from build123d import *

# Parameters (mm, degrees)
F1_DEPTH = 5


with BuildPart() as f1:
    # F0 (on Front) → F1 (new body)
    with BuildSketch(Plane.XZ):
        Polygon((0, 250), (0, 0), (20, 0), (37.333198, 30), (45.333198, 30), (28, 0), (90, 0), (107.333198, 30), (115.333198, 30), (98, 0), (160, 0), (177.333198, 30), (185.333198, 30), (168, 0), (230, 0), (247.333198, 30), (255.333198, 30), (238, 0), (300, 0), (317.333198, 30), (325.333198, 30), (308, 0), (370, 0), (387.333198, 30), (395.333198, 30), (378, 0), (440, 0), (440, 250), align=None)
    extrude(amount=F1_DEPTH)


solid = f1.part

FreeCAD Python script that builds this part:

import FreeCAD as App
import Part
import Sketcher

V = App.Vector
Q = App.Units.Quantity


def add_polygon(sketch, points):
    """Adds a closed chain of lines whose ends are joined by coincident constraints."""
    first, n = sketch.GeometryCount, len(points)
    for a, b in zip(points, points[1:] + points[:1]):
        sketch.addGeometry(Part.LineSegment(App.Vector(*a, 0), App.Vector(*b, 0)), False)
    for i in range(n):
        sketch.addConstraint(Sketcher.Constraint("Coincident", first + i, 2, first + (i + 1) % n, 1))

doc = App.newDocument("Part")
body = doc.addObject("PartDesign::Body", "Body")

sketch1 = body.newObject("Sketcher::SketchObject", "Sketch")
sketch1.AttachmentSupport = (doc.getObject("XZ_Plane"), [""])
sketch1.MapMode = "FlatFace"
add_polygon(sketch1, [(0, 250), (0, 0), (20, 0), (37, 30), (45, 30), (28, 0), (90, 0), (107, 30), (115, 30), (98, 0), (160, 0), (177, 30), (185, 30), (168, 0), (230, 0), (247, 30), (255, 30), (238, 0), (300, 0), (317, 30), (325, 30), (308, 0), (370, 0), (387, 30), (395, 30), (378, 0), (440, 0), (440, 250)])
sketch1.addConstraint([
    Sketcher.Constraint("Vertical", 0),
    Sketcher.Constraint("Horizontal", 1),
    Sketcher.Constraint("Horizontal", 3),
    Sketcher.Constraint("Horizontal", 5),
    Sketcher.Constraint("Horizontal", 7),
    Sketcher.Constraint("Horizontal", 9),
    Sketcher.Constraint("Horizontal", 11),
    Sketcher.Constraint("Horizontal", 13),
    Sketcher.Constraint("Horizontal", 15),
    Sketcher.Constraint("Horizontal", 17),
    Sketcher.Constraint("Horizontal", 19),
    Sketcher.Constraint("Horizontal", 21),
    Sketcher.Constraint("Horizontal", 23),
    Sketcher.Constraint("Horizontal", 25),
    Sketcher.Constraint("Vertical", 26),
    Sketcher.Constraint("Horizontal", 27),
    Sketcher.Constraint("Coincident", 0, 2, -1, 1),
    Sketcher.Constraint("PointOnObject", 4, 2, -1),
    Sketcher.Constraint("PointOnObject", 8, 2, -1),
    Sketcher.Constraint("PointOnObject", 12, 2, -1),
    Sketcher.Constraint("PointOnObject", 16, 2, -1),
    Sketcher.Constraint("PointOnObject", 20, 2, -1),
    Sketcher.Constraint("PointOnObject", 24, 2, -1),
    Sketcher.Constraint("Parallel", 2, 4),
    Sketcher.Constraint("Parallel", 4, 6),
    Sketcher.Constraint("Parallel", 6, 8),
    Sketcher.Constraint("Parallel", 8, 10),
    Sketcher.Constraint("Parallel", 10, 12),
    Sketcher.Constraint("Parallel", 12, 14),
    Sketcher.Constraint("Parallel", 14, 16),
    Sketcher.Constraint("Parallel", 16, 18),
    Sketcher.Constraint("Parallel", 18, 20),
    Sketcher.Constraint("Parallel", 20, 22),
    Sketcher.Constraint("Parallel", 22, 24),
    Sketcher.Constraint("Horizontal", 3, 2, 6, 2),
    Sketcher.Constraint("Horizontal", 7, 2, 10, 2),
    Sketcher.Constraint("Horizontal", 11, 2, 14, 2),
    Sketcher.Constraint("Horizontal", 15, 2, 18, 2),
    Sketcher.Constraint("Horizontal", 19, 2, 22, 2),
    Sketcher.Constraint("Equal", 3, 7),
    Sketcher.Constraint("Equal", 5, 9),
    Sketcher.Constraint("Equal", 7, 11),
    Sketcher.Constraint("Equal", 9, 13),
    Sketcher.Constraint("Equal", 11, 15),
    Sketcher.Constraint("Equal", 13, 17),
    Sketcher.Constraint("Equal", 15, 19),
    Sketcher.Constraint("Equal", 17, 21),
    Sketcher.Constraint("Equal", 19, 23),
    Sketcher.Constraint("Equal", 21, 25),
    Sketcher.Constraint("DistanceX", 1, 1, 1, 2, Q("20 mm")),
    Sketcher.Constraint("DistanceX", 3, 1, 3, 2, Q("8 mm")),
    Sketcher.Constraint("DistanceX", 5, 1, 5, 2, Q("62 mm")),
    Sketcher.Constraint("DistanceY", 0, 2, 0, 1, Q("250 mm")),
    Sketcher.Constraint("DistanceY", -1, 1, 2, 2, Q("30 mm")),
    Sketcher.Constraint("DistanceX", -1, 1, 2, 2, Q("37.333198 mm")),
])
pad1 = body.newObject("PartDesign::Pad", "Pad")
pad1.Profile = sketch1
pad1.Length = 5

doc.recompute()
